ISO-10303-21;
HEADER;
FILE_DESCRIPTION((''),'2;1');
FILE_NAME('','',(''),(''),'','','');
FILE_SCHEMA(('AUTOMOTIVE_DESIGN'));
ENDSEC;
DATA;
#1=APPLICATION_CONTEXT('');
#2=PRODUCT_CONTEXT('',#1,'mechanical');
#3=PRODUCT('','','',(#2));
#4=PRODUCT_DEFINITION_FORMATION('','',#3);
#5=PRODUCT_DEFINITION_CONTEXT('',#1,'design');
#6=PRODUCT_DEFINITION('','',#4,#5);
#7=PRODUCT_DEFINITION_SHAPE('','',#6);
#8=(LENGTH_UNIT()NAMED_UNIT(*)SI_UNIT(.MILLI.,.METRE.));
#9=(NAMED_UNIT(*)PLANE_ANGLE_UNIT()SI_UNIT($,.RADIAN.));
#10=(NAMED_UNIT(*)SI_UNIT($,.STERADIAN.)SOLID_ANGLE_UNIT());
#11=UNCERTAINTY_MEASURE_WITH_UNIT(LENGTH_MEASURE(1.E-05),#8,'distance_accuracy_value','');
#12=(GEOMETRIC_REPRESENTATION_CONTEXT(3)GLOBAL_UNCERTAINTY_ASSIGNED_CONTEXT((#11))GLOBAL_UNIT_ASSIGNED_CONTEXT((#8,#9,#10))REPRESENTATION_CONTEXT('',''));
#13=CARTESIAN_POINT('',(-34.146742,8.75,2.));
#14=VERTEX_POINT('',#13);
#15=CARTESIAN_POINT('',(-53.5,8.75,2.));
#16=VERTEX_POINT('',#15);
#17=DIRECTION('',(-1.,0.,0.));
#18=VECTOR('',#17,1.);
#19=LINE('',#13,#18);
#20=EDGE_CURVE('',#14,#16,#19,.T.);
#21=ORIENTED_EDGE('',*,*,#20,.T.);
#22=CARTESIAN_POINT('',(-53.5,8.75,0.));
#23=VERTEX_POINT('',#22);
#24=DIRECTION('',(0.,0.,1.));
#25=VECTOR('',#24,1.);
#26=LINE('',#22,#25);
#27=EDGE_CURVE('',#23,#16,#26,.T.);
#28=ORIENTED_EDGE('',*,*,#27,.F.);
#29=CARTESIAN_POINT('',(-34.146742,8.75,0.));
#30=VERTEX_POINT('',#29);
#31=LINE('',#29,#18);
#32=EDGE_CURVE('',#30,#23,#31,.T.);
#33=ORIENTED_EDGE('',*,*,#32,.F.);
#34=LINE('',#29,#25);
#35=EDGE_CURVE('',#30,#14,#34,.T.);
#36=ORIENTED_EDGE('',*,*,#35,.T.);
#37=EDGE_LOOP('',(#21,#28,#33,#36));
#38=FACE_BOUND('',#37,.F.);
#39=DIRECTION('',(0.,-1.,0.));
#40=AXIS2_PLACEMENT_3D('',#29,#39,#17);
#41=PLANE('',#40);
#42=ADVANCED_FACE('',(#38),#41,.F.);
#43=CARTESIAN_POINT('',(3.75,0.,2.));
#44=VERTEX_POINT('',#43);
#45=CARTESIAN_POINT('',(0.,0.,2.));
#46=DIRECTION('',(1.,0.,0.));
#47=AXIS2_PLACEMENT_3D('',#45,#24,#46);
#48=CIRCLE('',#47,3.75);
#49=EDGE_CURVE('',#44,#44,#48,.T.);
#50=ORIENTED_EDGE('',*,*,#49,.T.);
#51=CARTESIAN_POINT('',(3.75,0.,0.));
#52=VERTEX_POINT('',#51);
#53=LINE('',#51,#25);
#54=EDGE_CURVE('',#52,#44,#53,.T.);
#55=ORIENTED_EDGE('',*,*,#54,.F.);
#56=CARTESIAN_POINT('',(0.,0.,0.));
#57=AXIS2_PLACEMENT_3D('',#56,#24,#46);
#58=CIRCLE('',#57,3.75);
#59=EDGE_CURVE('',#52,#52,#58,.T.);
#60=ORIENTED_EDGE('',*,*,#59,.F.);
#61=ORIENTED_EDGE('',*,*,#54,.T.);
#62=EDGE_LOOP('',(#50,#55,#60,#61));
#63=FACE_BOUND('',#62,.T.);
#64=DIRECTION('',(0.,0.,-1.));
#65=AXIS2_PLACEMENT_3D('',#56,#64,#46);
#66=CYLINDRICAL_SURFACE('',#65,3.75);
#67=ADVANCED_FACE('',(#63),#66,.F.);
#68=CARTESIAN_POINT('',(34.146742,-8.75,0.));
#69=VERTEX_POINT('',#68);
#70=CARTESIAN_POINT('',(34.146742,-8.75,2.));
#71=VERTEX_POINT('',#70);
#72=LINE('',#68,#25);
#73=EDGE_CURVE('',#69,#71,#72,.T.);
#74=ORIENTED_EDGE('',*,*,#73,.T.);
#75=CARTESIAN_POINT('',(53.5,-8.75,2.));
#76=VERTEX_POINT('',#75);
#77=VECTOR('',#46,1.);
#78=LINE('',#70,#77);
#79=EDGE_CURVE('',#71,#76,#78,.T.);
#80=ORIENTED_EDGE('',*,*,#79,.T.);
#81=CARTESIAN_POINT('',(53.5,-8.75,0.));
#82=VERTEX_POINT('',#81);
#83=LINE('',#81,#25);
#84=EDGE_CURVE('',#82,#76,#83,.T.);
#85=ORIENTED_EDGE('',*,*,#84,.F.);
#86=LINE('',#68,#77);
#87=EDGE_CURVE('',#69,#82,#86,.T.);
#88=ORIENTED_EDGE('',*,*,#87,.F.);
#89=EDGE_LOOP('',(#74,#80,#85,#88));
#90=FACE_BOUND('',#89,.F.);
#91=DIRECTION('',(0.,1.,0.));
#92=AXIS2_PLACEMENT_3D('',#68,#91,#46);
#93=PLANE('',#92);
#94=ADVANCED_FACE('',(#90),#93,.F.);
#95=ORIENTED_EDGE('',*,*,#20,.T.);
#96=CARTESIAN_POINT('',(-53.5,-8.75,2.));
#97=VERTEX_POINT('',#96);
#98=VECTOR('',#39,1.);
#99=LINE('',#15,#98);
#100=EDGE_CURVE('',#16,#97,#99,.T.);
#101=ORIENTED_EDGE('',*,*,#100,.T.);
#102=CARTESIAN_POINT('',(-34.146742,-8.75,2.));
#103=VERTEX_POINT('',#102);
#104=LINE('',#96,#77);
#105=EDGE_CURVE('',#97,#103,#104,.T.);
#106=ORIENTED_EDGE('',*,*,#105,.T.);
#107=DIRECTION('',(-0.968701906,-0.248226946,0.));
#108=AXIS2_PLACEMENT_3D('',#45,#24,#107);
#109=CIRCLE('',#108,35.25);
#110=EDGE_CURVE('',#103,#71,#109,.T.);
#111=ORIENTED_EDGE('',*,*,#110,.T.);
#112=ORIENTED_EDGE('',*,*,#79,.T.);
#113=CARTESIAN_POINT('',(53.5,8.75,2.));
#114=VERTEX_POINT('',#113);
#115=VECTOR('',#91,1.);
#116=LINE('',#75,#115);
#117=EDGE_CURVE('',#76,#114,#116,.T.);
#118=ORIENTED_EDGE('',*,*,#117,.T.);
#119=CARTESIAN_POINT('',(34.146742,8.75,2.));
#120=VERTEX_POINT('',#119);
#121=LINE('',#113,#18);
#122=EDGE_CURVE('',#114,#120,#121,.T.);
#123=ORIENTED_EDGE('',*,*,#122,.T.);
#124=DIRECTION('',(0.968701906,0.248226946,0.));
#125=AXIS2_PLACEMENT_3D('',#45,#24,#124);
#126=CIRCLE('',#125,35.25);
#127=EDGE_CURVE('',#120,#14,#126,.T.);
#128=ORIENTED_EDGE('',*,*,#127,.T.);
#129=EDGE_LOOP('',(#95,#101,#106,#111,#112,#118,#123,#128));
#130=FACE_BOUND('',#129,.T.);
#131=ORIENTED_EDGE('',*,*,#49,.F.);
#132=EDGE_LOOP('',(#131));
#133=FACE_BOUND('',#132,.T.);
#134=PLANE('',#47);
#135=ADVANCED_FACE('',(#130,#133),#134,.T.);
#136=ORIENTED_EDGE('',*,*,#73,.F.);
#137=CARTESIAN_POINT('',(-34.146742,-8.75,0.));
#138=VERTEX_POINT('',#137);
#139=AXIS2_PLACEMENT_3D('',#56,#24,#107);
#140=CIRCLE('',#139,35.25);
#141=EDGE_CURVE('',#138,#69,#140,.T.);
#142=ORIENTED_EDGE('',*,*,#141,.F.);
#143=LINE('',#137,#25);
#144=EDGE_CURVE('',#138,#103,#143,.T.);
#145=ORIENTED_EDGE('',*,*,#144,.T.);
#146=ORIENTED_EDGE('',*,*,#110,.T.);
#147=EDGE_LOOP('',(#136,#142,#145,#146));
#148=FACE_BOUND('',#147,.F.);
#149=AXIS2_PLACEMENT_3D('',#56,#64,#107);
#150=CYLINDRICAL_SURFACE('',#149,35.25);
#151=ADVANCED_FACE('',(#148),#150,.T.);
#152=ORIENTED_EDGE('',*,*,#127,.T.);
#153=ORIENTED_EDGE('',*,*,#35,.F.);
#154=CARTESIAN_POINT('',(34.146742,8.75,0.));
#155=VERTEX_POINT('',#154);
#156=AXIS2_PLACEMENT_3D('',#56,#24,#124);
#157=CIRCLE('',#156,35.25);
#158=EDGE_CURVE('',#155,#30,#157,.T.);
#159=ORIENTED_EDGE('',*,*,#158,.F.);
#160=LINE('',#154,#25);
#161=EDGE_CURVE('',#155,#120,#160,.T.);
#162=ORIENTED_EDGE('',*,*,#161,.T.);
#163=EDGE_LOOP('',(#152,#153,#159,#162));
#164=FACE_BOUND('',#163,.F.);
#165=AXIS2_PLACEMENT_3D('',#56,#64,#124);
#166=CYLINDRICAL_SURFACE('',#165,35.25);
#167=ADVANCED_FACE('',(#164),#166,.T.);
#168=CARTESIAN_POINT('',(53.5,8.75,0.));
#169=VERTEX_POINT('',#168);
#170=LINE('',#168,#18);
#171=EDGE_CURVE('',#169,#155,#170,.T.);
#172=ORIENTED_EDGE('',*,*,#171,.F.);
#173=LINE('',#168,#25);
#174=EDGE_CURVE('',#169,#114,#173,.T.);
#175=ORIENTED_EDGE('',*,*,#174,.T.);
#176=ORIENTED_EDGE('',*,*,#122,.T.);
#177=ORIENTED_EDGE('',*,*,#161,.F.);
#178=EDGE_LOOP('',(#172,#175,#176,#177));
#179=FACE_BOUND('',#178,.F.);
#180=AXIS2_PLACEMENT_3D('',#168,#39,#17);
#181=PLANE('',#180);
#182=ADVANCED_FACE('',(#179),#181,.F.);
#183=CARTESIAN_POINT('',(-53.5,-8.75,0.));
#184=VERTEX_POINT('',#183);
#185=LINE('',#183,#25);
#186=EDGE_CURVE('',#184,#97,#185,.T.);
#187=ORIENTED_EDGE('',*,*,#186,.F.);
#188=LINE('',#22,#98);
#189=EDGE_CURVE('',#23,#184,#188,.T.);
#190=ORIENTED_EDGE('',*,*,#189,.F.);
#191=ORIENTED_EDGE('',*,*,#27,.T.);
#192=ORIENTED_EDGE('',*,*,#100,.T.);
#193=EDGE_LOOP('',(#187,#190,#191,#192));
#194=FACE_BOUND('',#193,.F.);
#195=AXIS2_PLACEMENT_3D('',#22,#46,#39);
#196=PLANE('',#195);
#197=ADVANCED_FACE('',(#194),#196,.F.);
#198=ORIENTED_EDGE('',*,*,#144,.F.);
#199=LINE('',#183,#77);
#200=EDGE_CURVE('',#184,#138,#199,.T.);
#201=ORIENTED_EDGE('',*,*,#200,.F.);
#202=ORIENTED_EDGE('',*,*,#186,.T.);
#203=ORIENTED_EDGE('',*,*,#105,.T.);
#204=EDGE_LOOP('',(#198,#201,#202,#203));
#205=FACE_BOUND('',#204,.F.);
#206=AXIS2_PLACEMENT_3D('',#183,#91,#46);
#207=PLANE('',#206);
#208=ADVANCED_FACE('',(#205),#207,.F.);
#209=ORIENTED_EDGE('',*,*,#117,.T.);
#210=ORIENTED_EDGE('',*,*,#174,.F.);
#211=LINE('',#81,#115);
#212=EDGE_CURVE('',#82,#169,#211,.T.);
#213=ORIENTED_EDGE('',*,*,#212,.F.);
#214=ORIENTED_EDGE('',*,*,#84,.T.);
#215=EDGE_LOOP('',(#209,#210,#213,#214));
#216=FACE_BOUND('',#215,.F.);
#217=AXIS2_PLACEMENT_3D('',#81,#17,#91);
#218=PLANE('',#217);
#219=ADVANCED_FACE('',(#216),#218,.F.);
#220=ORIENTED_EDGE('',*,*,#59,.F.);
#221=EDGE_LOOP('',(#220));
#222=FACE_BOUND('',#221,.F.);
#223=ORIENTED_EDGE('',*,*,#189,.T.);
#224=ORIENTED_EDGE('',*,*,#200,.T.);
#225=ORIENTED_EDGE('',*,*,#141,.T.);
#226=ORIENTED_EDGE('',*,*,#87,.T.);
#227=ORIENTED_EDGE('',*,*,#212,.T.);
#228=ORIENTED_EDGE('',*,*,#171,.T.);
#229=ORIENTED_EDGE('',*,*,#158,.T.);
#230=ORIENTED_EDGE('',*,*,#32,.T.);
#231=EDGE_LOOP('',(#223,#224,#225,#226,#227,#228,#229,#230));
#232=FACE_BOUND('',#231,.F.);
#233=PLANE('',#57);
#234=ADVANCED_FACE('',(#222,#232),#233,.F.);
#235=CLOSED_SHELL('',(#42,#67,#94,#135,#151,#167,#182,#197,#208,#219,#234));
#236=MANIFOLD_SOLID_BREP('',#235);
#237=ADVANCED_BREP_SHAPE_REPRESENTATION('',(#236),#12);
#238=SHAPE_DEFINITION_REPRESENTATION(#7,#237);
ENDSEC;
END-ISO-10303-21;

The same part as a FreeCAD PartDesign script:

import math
import FreeCAD as App
import Part
import Sketcher
from FreeCAD import Vector

doc = App.newDocument("Part")
body = doc.addObject("PartDesign::Body", "Body")

# Sketch on XY plane
sketch1 = body.newObject("Sketcher::SketchObject", "Sketch")
sketch1.AttachmentSupport = (doc.getObject("XY_Plane"), [""])
sketch1.MapMode = "FlatFace"
sketch1.addGeometry([
    Part.LineSegment(Vector(-53.5, -8.8, 0), Vector(-34.1, -8.8, 0)),  # 0
    Part.ArcOfCircle(Part.Circle(Vector(0, 0, 0), Vector(0, 0, 1), 35.2), math.radians(-166), math.radians(-14)),  # 1
    Part.LineSegment(Vector(34.1, -8.8, 0), Vector(53.5, -8.8, 0)),  # 2
    Part.LineSegment(Vector(53.5, -8.8, 0), Vector(53.5, 8.8, 0)),  # 3
    Part.LineSegment(Vector(53.5, 8.8, 0), Vector(34.1, 8.8, 0)),  # 4
    Part.ArcOfCircle(Part.Circle(Vector(0, 0, 0), Vector(0, 0, 1), 35.2), math.radians(14), math.radians(166)),  # 5
    Part.LineSegment(Vector(-34.1, 8.8, 0), Vector(-53.5, 8.8, 0)),  # 6
    Part.LineSegment(Vector(-53.5, 8.8, 0), Vector(-53.5, -8.8, 0)),  # 7
    Part.Circle(Vector(0, 0, 0), Vector(0, 0, 1), 3.8),  # 8
], False)
sketch1.addConstraint([
    Sketcher.Constraint("Coincident", 0, 2, 1, 1),
    Sketcher.Constraint("Coincident", 1, 2, 2, 1),
    Sketcher.Constraint("Coincident", 2, 2, 3, 1),
    Sketcher.Constraint("Coincident", 3, 2, 4, 1),
    Sketcher.Constraint("Coincident", 4, 2, 5, 1),
    Sketcher.Constraint("Coincident", 5, 2, 6, 1),
    Sketcher.Constraint("Coincident", 6, 2, 7, 1),
    Sketcher.Constraint("Coincident", 7, 2, 0, 1),
    Sketcher.Constraint("Horizontal", 0),
    Sketcher.Constraint("Horizontal", 2),
    Sketcher.Constraint("Vertical", 3),
    Sketcher.Constraint("Horizontal", 4),
    Sketcher.Constraint("Horizontal", 6),
    Sketcher.Constraint("Vertical", 7),
    Sketcher.Constraint("Coincident", 1, 3, -1, 1),
    Sketcher.Constraint("Coincident", 5, 3, -1, 1),
    Sketcher.Constraint("Coincident", 8, 3, -1, 1),
    Sketcher.Constraint("Equal", 1, 5),
    Sketcher.Constraint("Symmetric", 2, 2, 6, 2, -1, 1),
    Sketcher.Constraint("Horizontal", 0, 2, 1, 2),
    Sketcher.Constraint("Horizontal", 4, 2, 5, 2),
    Sketcher.Constraint("Diameter", 8, 7.5),
    Sketcher.Constraint("Radius", 1, 35.25),
    Sketcher.Constraint("DistanceY", 3, 1, 3, 2, 17.5),
    Sketcher.Constraint("DistanceX", -1, 1, 2, 2, 53.5),
])
pad1 = body.newObject("PartDesign::Pad", "Pad")
pad1.Profile = sketch1
pad1.Length = 2

doc.recompute()
